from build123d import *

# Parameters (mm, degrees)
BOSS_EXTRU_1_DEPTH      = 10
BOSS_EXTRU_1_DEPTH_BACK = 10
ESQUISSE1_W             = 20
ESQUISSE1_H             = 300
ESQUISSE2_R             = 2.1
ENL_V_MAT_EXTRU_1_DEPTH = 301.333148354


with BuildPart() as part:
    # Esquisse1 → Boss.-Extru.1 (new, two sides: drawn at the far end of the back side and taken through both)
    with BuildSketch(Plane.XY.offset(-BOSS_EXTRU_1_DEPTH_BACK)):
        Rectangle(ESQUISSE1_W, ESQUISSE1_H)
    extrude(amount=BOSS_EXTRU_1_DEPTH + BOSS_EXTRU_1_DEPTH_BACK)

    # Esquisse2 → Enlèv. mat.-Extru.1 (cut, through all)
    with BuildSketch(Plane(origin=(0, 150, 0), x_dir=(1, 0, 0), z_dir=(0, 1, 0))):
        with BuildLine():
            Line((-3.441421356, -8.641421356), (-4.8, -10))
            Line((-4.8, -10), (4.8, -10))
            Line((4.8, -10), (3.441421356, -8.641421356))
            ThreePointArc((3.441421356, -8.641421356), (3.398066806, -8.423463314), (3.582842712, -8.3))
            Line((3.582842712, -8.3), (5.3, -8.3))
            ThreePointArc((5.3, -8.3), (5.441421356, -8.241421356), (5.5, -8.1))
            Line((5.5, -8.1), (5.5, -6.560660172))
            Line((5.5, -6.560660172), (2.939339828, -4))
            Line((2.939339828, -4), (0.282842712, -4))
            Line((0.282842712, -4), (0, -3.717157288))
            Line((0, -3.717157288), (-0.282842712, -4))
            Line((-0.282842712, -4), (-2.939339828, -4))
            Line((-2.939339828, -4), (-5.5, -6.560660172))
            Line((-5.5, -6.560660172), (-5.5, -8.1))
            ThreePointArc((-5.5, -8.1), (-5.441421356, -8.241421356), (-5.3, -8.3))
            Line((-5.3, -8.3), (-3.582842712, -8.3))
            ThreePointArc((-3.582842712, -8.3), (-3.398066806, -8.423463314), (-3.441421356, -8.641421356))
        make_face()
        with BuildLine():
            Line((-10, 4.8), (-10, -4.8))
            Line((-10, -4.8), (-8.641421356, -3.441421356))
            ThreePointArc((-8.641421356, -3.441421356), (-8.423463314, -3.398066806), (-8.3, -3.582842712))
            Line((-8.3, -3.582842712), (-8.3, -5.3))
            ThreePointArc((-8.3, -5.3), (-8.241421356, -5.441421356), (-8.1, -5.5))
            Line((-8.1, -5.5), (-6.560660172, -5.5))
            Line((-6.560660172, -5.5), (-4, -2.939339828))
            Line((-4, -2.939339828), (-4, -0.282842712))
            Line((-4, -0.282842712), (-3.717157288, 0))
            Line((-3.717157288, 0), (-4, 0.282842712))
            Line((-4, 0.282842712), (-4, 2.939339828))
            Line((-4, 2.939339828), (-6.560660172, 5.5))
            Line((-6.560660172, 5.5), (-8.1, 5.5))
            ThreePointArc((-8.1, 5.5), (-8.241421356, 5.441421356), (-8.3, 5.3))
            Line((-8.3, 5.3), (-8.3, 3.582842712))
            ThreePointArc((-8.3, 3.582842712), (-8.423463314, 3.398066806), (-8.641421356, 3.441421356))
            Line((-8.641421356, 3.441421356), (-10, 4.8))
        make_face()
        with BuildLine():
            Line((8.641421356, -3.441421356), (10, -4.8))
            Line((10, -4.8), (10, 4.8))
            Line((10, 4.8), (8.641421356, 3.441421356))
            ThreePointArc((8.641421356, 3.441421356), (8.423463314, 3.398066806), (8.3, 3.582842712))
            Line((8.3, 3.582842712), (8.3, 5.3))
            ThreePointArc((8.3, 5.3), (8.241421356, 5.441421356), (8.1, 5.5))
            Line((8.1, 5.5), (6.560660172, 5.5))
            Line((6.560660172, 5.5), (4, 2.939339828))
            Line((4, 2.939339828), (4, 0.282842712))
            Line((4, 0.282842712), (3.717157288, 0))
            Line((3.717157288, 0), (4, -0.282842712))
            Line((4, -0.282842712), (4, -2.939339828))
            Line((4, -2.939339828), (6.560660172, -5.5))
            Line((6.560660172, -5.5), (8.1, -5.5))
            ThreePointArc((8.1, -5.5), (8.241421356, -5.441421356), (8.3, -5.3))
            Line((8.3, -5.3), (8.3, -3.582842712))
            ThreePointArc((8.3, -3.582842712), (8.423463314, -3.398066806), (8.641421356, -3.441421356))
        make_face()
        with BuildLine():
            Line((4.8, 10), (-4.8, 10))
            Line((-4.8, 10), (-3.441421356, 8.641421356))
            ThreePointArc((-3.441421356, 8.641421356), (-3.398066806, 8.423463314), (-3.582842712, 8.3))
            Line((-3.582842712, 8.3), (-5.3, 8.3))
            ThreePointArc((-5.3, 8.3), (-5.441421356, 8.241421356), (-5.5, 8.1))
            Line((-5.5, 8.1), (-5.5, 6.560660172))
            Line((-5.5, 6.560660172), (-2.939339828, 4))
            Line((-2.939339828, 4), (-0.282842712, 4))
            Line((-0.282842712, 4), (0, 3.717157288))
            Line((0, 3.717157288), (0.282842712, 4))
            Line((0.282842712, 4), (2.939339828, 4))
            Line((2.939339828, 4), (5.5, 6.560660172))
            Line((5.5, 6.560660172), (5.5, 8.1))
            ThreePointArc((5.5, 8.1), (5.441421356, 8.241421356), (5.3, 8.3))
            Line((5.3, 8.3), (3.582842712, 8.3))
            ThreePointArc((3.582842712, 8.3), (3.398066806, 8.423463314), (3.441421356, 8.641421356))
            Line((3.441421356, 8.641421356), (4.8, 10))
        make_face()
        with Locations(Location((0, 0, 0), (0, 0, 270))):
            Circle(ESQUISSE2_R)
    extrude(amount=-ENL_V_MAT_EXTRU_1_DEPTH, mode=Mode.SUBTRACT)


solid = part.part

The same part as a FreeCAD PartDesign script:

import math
import FreeCAD as App
import Part
import Sketcher
from FreeCAD import Vector


def add_polygon(sketch, points):
    """Adds a closed chain of lines whose ends are joined by coincident constraints."""
    first, n = sketch.GeometryCount, len(points)
    for a, b in zip(points, points[1:] + points[:1]):
        sketch.addGeometry(Part.LineSegment(App.Vector(*a, 0), App.Vector(*b, 0)), False)
    for i in range(n):
        sketch.addConstraint(Sketcher.Constraint("Coincident", first + i, 2, first + (i + 1) % n, 1))

doc = App.newDocument("Part")
body = doc.addObject("PartDesign::Body", "Body")

sketch1 = body.newObject("Sketcher::SketchObject", "Sketch")
sketch1.AttachmentSupport = (doc.getObject("XY_Plane"), [""])
sketch1.MapMode = "FlatFace"
add_polygon(sketch1, [(-10, 150), (-10, -150), (10, -150), (10, 150)])
sketch1.addConstraint(Sketcher.Constraint("Vertical", 0))
sketch1.addConstraint(Sketcher.Constraint("Horizontal", 1))
sketch1.addConstraint(Sketcher.Constraint("Vertical", 2))
sketch1.addConstraint(Sketcher.Constraint("Horizontal", 3))
sketch1.addConstraint(Sketcher.Constraint("Symmetric", 0, 2, 2, 2, -1, 1))
sketch1.addConstraint(Sketcher.Constraint("DistanceX", 1, 1, 1, 2, 20.0))
sketch1.addConstraint(Sketcher.Constraint("DistanceY", 0, 2, 0, 1, 300.0))
pad1 = body.newObject("PartDesign::Pad", "Pad")
pad1.Profile = sketch1
pad1.Type = "TwoLengths"
pad1.Length = 10
pad1.Length2 = 10

sketch2 = body.newObject("Sketcher::SketchObject", "Sketch001")
sketch2.AttachmentSupport = (doc.getObject("XZ_Plane"), [""])
sketch2.MapMode = "FlatFace"
sketch2.AttachmentOffset = App.Placement(Vector(0, 0, -150), App.Rotation())
sketch2.addGeometry(Part.LineSegment(Vector(-3.441421, 8.641421, 0), Vector(-4.8, 10, 0)), False)
sketch2.addGeometry(Part.LineSegment(Vector(-4.8, 10, 0), Vector(4.8, 10, 0)), False)
sketch2.addGeometry(Part.LineSegment(Vector(4.8, 10, 0), Vector(3.441421, 8.641421, 0)), False)
sketch2.addGeometry(Part.ArcOfCircle(Part.Circle(Vector(3.582843, 8.5, 0), Vector(0, 0, 1), 0.2), math.radians(135), math.radians(270)), False)
sketch2.addGeometry(Part.LineSegment(Vector(3.582843, 8.3, 0), Vector(5.3, 8.3, 0)), False)
sketch2.addGeometry(Part.ArcOfCircle(Part.Circle(Vector(5.3, 8.1, 0), Vector(0, 0, 1), 0.2), math.radians(0), math.radians(90)), False)
sketch2.addGeometry(Part.LineSegment(Vector(5.5, 8.1, 0), Vector(5.5, 6.56066, 0)), False)
sketch2.addGeometry(Part.LineSegment(Vector(5.5, 6.56066, 0), Vector(2.93934, 4, 0)), False)
sketch2.addGeometry(Part.LineSegment(Vector(2.93934, 4, 0), Vector(0.282843, 4, 0)), False)
sketch2.addGeometry(Part.LineSegment(Vector(0.282843, 4, 0), Vector(0, 3.717157, 0)), False)
sketch2.addGeometry(Part.LineSegment(Vector(0, 3.717157, 0), Vector(-0.282843, 4, 0)), False)
sketch2.addGeometry(Part.LineSegment(Vector(-0.282843, 4, 0), Vector(-2.93934, 4, 0)), False)
sketch2.addGeometry(Part.LineSegment(Vector(-2.93934, 4, 0), Vector(-5.5, 6.56066, 0)), False)
sketch2.addGeometry(Part.LineSegment(Vector(-5.5, 6.56066, 0), Vector(-5.5, 8.1, 0)), False)
sketch2.addGeometry(Part.ArcOfCircle(Part.Circle(Vector(-5.3, 8.1, 0), Vector(0, 0, 1), 0.2), math.radians(90), math.radians(180)), False)
sketch2.addGeometry(Part.LineSegment(Vector(-5.3, 8.3, 0), Vector(-3.582843, 8.3, 0)), False)
sketch2.addGeometry(Part.ArcOfCircle(Part.Circle(Vector(-3.582843, 8.5, 0), Vector(0, 0, 1), 0.2), math.radians(-90), math.radians(45)), False)
sketch2.addGeometry(Part.LineSegment(Vector(-10, -4.8, 0), Vector(-10, 4.8, 0)), False)
sketch2.addGeometry(Part.LineSegment(Vector(-10, 4.8, 0), Vector(-8.641421, 3.441421, 0)), False)
sketch2.addGeometry(Part.ArcOfCircle(Part.Circle(Vector(-8.5, 3.582843, 0), Vector(0, 0, 1), 0.2), math.radians(-135), math.radians(0)), False)
sketch2.addGeometry(Part.LineSegment(Vector(-8.3, 3.582843, 0), Vector(-8.3, 5.3, 0)), False)
sketch2.addGeometry(Part.ArcOfCircle(Part.Circle(Vector(-8.1, 5.3, 0), Vector(0, 0, 1), 0.2), math.radians(90), math.radians(180)), False)
sketch2.addGeometry(Part.LineSegment(Vector(-8.1, 5.5, 0), Vector(-6.56066, 5.5, 0)), False)
sketch2.addGeometry(Part.LineSegment(Vector(-6.56066, 5.5, 0), Vector(-4, 2.93934, 0)), False)
sketch2.addGeometry(Part.LineSegment(Vector(-4, 2.93934, 0), Vector(-4, 0.282843, 0)), False)
sketch2.addGeometry(Part.LineSegment(Vector(-4, 0.282843, 0), Vector(-3.717157, 0, 0)), False)
sketch2.addGeometry(Part.LineSegment(Vector(-3.717157, 0, 0), Vector(-4, -0.282843, 0)), False)
sketch2.addGeometry(Part.LineSegment(Vector(-4, -0.282843, 0), Vector(-4, -2.93934, 0)), False)
sketch2.addGeometry(Part.LineSegment(Vector(-4, -2.93934, 0), Vector(-6.56066, -5.5, 0)), False)
sketch2.addGeometry(Part.LineSegment(Vector(-6.56066, -5.5, 0), Vector(-8.1, -5.5, 0)), False)
sketch2.addGeometry(Part.ArcOfCircle(Part.Circle(Vector(-8.1, -5.3, 0), Vector(0, 0, 1), 0.2), math.radians(-180), math.radians(-90)), False)
sketch2.addGeometry(Part.LineSegment(Vector(-8.3, -5.3, 0), Vector(-8.3, -3.582843, 0)), False)
sketch2.addGeometry(Part.ArcOfCircle(Part.Circle(Vector(-8.5, -3.582843, 0), Vector(0, 0, 1), 0.2), math.radians(0), math.radians(135)), False)
sketch2.addGeometry(Part.LineSegment(Vector(-8.641421, -3.441421, 0), Vector(-10, -4.8, 0)), False)
sketch2.addGeometry(Part.LineSegment(Vector(8.641421, 3.441421, 0), Vector(10, 4.8, 0)), False)
sketch2.addGeometry(Part.LineSegment(Vector(10, 4.8, 0), Vector(10, -4.8, 0)), False)
sketch2.addGeometry(Part.LineSegment(Vector(10, -4.8, 0), Vector(8.641421, -3.441421, 0)), False)
sketch2.addGeometry(Part.ArcOfCircle(Part.Circle(Vector(8.5, -3.582843, 0), Vector(0, 0, 1), 0.2), math.radians(45), math.radians(180)), False)
sketch2.addGeometry(Part.LineSegment(Vector(8.3, -3.582843, 0), Vector(8.3, -5.3, 0)), False)
sketch2.addGeometry(Part.ArcOfCircle(Part.Circle(Vector(8.1, -5.3, 0), Vector(0, 0, 1), 0.2), math.radians(-90), math.radians(0)), False)
sketch2.addGeometry(Part.LineSegment(Vector(8.1, -5.5, 0), Vector(6.56066, -5.5, 0)), False)
sketch2.addGeometry(Part.LineSegment(Vector(6.56066, -5.5, 0), Vector(4, -2.93934, 0)), False)
sketch2.addGeometry(Part.LineSegment(Vector(4, -2.93934, 0), Vector(4, -0.282843, 0)), False)
sketch2.addGeometry(Part.LineSegment(Vector(4, -0.282843, 0), Vector(3.717157, 0, 0)), False)
sketch2.addGeometry(Part.LineSegment(Vector(3.717157, 0, 0), Vector(4, 0.282843, 0)), False)
sketch2.addGeometry(Part.LineSegment(Vector(4, 0.282843, 0), Vector(4, 2.93934, 0)), False)
sketch2.addGeometry(Part.LineSegment(Vector(4, 2.93934, 0), Vector(6.56066, 5.5, 0)), False)
sketch2.addGeometry(Part.LineSegment(Vector(6.56066, 5.5, 0), Vector(8.1, 5.5, 0)), False)
sketch2.addGeometry(Part.ArcOfCircle(Part.Circle(Vector(8.1, 5.3, 0), Vector(0, 0, 1), 0.2), math.radians(0), math.radians(90)), False)
sketch2.addGeometry(Part.LineSegment(Vector(8.3, 5.3, 0), Vector(8.3, 3.582843, 0)), False)
sketch2.addGeometry(Part.ArcOfCircle(Part.Circle(Vector(8.5, 3.582843, 0), Vector(0, 0, 1), 0.2), math.radians(-180), math.radians(-45)), False)
sketch2.addGeometry(Part.LineSegment(Vector(4.8, -10, 0), Vector(-4.8, -10, 0)), False)
sketch2.addGeometry(Part.LineSegment(Vector(-4.8, -10, 0), Vector(-3.441421, -8.641421, 0)), False)
sketch2.addGeometry(Part.ArcOfCircle(Part.Circle(Vector(-3.582843, -8.5, 0), Vector(0, 0, 1), 0.2), math.radians(-45), math.radians(90)), False)
sketch2.addGeometry(Part.LineSegment(Vector(-3.582843, -8.3, 0), Vector(-5.3, -8.3, 0)), False)
sketch2.addGeometry(Part.ArcOfCircle(Part.Circle(Vector(-5.3, -8.1, 0), Vector(0, 0, 1), 0.2), math.radians(-180), math.radians(-90)), False)
sketch2.addGeometry(Part.LineSegment(Vector(-5.5, -8.1, 0), Vector(-5.5, -6.56066, 0)), False)
sketch2.addGeometry(Part.LineSegment(Vector(-5.5, -6.56066, 0), Vector(-2.93934, -4, 0)), False)
sketch2.addGeometry(Part.LineSegment(Vector(-2.93934, -4, 0), Vector(-0.282843, -4, 0)), False)
sketch2.addGeometry(Part.LineSegment(Vector(-0.282843, -4, 0), Vector(0, -3.717157, 0)), False)
sketch2.addGeometry(Part.LineSegment(Vector(0, -3.717157, 0), Vector(0.282843, -4, 0)), False)
sketch2.addGeometry(Part.LineSegment(Vector(0.282843, -4, 0), Vector(2.93934, -4, 0)), False)
sketch2.addGeometry(Part.LineSegment(Vector(2.93934, -4, 0), Vector(5.5, -6.56066, 0)), False)
sketch2.addGeometry(Part.LineSegment(Vector(5.5, -6.56066, 0), Vector(5.5, -8.1, 0)), False)
sketch2.addGeometry(Part.ArcOfCircle(Part.Circle(Vector(5.3, -8.1, 0), Vector(0, 0, 1), 0.2), math.radians(-90), math.radians(0)), False)
sketch2.addGeometry(Part.LineSegment(Vector(5.3, -8.3, 0), Vector(3.582843, -8.3, 0)), False)
sketch2.addGeometry(Part.ArcOfCircle(Part.Circle(Vector(3.582843, -8.5, 0), Vector(0, 0, 1), 0.2), math.radians(90), math.radians(225)), False)
sketch2.addGeometry(Part.LineSegment(Vector(3.441421, -8.641421, 0), Vector(4.8, -10, 0)), False)
sketch2.addGeometry(Part.Circle(Vector(0, 0, 0), Vector(0, 0, 1), 2.1), False)
sketch2.addConstraint(Sketcher.Constraint("Coincident", 0, 2, 1, 1))
sketch2.addConstraint(Sketcher.Constraint("Coincident", 1, 2, 2, 1))
sketch2.addConstraint(Sketcher.Constraint("Tangent", 2, 2, 3, 1))
sketch2.addConstraint(Sketcher.Constraint("Tangent", 3, 2, 4, 1))
sketch2.addConstraint(Sketcher.Constraint("Tangent", 4, 2, 5, 2))
sketch2.addConstraint(Sketcher.Constraint("Tangent", 5, 1, 6, 1))
sketch2.addConstraint(Sketcher.Constraint("Coincident", 6, 2, 7, 1))
sketch2.addConstraint(Sketcher.Constraint("Coincident", 7, 2, 8, 1))
sketch2.addConstraint(Sketcher.Constraint("Coincident", 8, 2, 9, 1))
sketch2.addConstraint(Sketcher.Constraint("Coincident", 9, 2, 10, 1))
sketch2.addConstraint(Sketcher.Constraint("Coincident", 10, 2, 11, 1))
sketch2.addConstraint(Sketcher.Constraint("Coincident", 11, 2, 12, 1))
sketch2.addConstraint(Sketcher.Constraint("Coincident", 12, 2, 13, 1))
sketch2.addConstraint(Sketcher.Constraint("Tangent", 13, 2, 14, 2))
sketch2.addConstraint(Sketcher.Constraint("Tangent", 14, 1, 15, 1))
sketch2.addConstraint(Sketcher.Constraint("Tangent", 15, 2, 16, 1))
sketch2.addConstraint(Sketcher.Constraint("Tangent", 16, 2, 0, 1))
sketch2.addConstraint(Sketcher.Constraint("Coincident", 17, 2, 18, 1))
sketch2.addConstraint(Sketcher.Constraint("Tangent", 18, 2, 19, 1))
sketch2.addConstraint(Sketcher.Constraint("Tangent", 19, 2, 20, 1))
sketch2.addConstraint(Sketcher.Constraint("Tangent", 20, 2, 21, 2))
sketch2.addConstraint(Sketcher.Constraint("Tangent", 21, 1, 22, 1))
sketch2.addConstraint(Sketcher.Constraint("Coincident", 22, 2, 23, 1))
sketch2.addConstraint(Sketcher.Constraint("Coincident", 23, 2, 24, 1))
sketch2.addConstraint(Sketcher.Constraint("Coincident", 24, 2, 25, 1))
sketch2.addConstraint(Sketcher.Constraint("Coincident", 25, 2, 26, 1))
sketch2.addConstraint(Sketcher.Constraint("Coincident", 26, 2, 27, 1))
sketch2.addConstraint(Sketcher.Constraint("Coincident", 27, 2, 28, 1))
sketch2.addConstraint(Sketcher.Constraint("Coincident", 28, 2, 29, 1))
sketch2.addConstraint(Sketcher.Constraint("Tangent", 29, 2, 30, 2))
sketch2.addConstraint(Sketcher.Constraint("Tangent", 30, 1, 31, 1))
sketch2.addConstraint(Sketcher.Constraint("Tangent", 31, 2, 32, 1))
sketch2.addConstraint(Sketcher.Constraint("Tangent", 32, 2, 33, 1))
sketch2.addConstraint(Sketcher.Constraint("Coincident", 33, 2, 17, 1))
sketch2.addConstraint(Sketcher.Constraint("Coincident", 34, 2, 35, 1))
sketch2.addConstraint(Sketcher.Constraint("Coincident", 35, 2, 36, 1))
sketch2.addConstraint(Sketcher.Constraint("Tangent", 36, 2, 37, 1))
sketch2.addConstraint(Sketcher.Constraint("Tangent", 37, 2, 38, 1))
sketch2.addConstraint(Sketcher.Constraint("Tangent", 38, 2, 39, 2))
sketch2.addConstraint(Sketcher.Constraint("Tangent", 39, 1, 40, 1))
sketch2.addConstraint(Sketcher.Constraint("Coincident", 40, 2, 41, 1))
sketch2.addConstraint(Sketcher.Constraint("Coincident", 41, 2, 42, 1))
sketch2.addConstraint(Sketcher.Constraint("Coincident", 42, 2, 43, 1))
sketch2.addConstraint(Sketcher.Constraint("Coincident", 43, 2, 44, 1))
sketch2.addConstraint(Sketcher.Constraint("Coincident", 44, 2, 45, 1))
sketch2.addConstraint(Sketcher.Constraint("Coincident", 45, 2, 46, 1))
sketch2.addConstraint(Sketcher.Constraint("Coincident", 46, 2, 47, 1))
sketch2.addConstraint(Sketcher.Constraint("Tangent", 47, 2, 48, 2))
sketch2.addConstraint(Sketcher.Constraint("Tangent", 48, 1, 49, 1))
sketch2.addConstraint(Sketcher.Constraint("Tangent", 49, 2, 50, 1))
sketch2.addConstraint(Sketcher.Constraint("Tangent", 50, 2, 34, 1))
sketch2.addConstraint(Sketcher.Constraint("Coincident", 51, 2, 52, 1))
sketch2.addConstraint(Sketcher.Constraint("Tangent", 52, 2, 53, 1))
sketch2.addConstraint(Sketcher.Constraint("Tangent", 53, 2, 54, 1))
sketch2.addConstraint(Sketcher.Constraint("Tangent", 54, 2, 55, 2))
sketch2.addConstraint(Sketcher.Constraint("Tangent", 55, 1, 56, 1))
sketch2.addConstraint(Sketcher.Constraint("Coincident", 56, 2, 57, 1))
sketch2.addConstraint(Sketcher.Constraint("Coincident", 57, 2, 58, 1))
sketch2.addConstraint(Sketcher.Constraint("Coincident", 58, 2, 59, 1))
sketch2.addConstraint(Sketcher.Constraint("Coincident", 59, 2, 60, 1))
sketch2.addConstraint(Sketcher.Constraint("Coincident", 60, 2, 61, 1))
sketch2.addConstraint(Sketcher.Constraint("Coincident", 61, 2, 62, 1))
sketch2.addConstraint(Sketcher.Constraint("Coincident", 62, 2, 63, 1))
sketch2.addConstraint(Sketcher.Constraint("Tangent", 63, 2, 64, 2))
sketch2.addConstraint(Sketcher.Constraint("Tangent", 64, 1, 65, 1))
sketch2.addConstraint(Sketcher.Constraint("Tangent", 65, 2, 66, 1))
sketch2.addConstraint(Sketcher.Constraint("Tangent", 66, 2, 67, 1))
sketch2.addConstraint(Sketcher.Constraint("Coincident", 67, 2, 51, 1))
sketch2.addConstraint(Sketcher.Constraint("Horizontal", 1))
sketch2.addConstraint(Sketcher.Constraint("Horizontal", 4))
sketch2.addConstraint(Sketcher.Constraint("Vertical", 6))
sketch2.addConstraint(Sketcher.Constraint("Horizontal", 8))
sketch2.addConstraint(Sketcher.Constraint("Horizontal", 11))
sketch2.addConstraint(Sketcher.Constraint("Vertical", 13))
sketch2.addConstraint(Sketcher.Constraint("Horizontal", 15))
sketch2.addConstraint(Sketcher.Constraint("Vertical", 17))
sketch2.addConstraint(Sketcher.Constraint("Vertical", 20))
sketch2.addConstraint(Sketcher.Constraint("Horizontal", 22))
sketch2.addConstraint(Sketcher.Constraint("Vertical", 24))
sketch2.addConstraint(Sketcher.Constraint("Vertical", 27))
sketch2.addConstraint(Sketcher.Constraint("Horizontal", 29))
sketch2.addConstraint(Sketcher.Constraint("Vertical", 31))
sketch2.addConstraint(Sketcher.Constraint("Vertical", 35))
sketch2.addConstraint(Sketcher.Constraint("Vertical", 38))
sketch2.addConstraint(Sketcher.Constraint("Horizontal", 40))
sketch2.addConstraint(Sketcher.Constraint("Vertical", 42))
sketch2.addConstraint(Sketcher.Constraint("Vertical", 45))
sketch2.addConstraint(Sketcher.Constraint("Horizontal", 47))
sketch2.addConstraint(Sketcher.Constraint("Vertical", 49))
sketch2.addConstraint(Sketcher.Constraint("Horizontal", 51))
sketch2.addConstraint(Sketcher.Constraint("Horizontal", 54))
sketch2.addConstraint(Sketcher.Constraint("Vertical", 56))
sketch2.addConstraint(Sketcher.Constraint("Horizontal", 58))
sketch2.addConstraint(Sketcher.Constraint("Horizontal", 61))
sketch2.addConstraint(Sketcher.Constraint("Vertical", 63))
sketch2.addConstraint(Sketcher.Constraint("Horizontal", 65))
sketch2.addConstraint(Sketcher.Constraint("Coincident", 68, 3, -1, 1))
sketch2.addConstraint(Sketcher.Constraint("Equal", 3, 5))
sketch2.addConstraint(Sketcher.Constraint("Equal", 5, 14))
sketch2.addConstraint(Sketcher.Constraint("Equal", 14, 16))
sketch2.addConstraint(Sketcher.Constraint("Equal", 16, 19))
sketch2.addConstraint(Sketcher.Constraint("Equal", 19, 21))
sketch2.addConstraint(Sketcher.Constraint("Equal", 21, 30))
sketch2.addConstraint(Sketcher.Constraint("Equal", 30, 32))
sketch2.addConstraint(Sketcher.Constraint("Equal", 32, 37))
sketch2.addConstraint(Sketcher.Constraint("Equal", 37, 39))
sketch2.addConstraint(Sketcher.Constraint("Equal", 39, 48))
sketch2.addConstraint(Sketcher.Constraint("Equal", 48, 50))
sketch2.addConstraint(Sketcher.Constraint("Equal", 50, 53))
sketch2.addConstraint(Sketcher.Constraint("Equal", 53, 55))
sketch2.addConstraint(Sketcher.Constraint("Equal", 55, 64))
sketch2.addConstraint(Sketcher.Constraint("Equal", 64, 66))
sketch2.addConstraint(Sketcher.Constraint("Symmetric", 19, 3, 37, 3, -1, 1))
sketch2.addConstraint(Sketcher.Constraint("Symmetric", 30, 3, 48, 3, -1, 1))
sketch2.addConstraint(Sketcher.Constraint("Symmetric", 3, 3, 53, 3, -1, 1))
sketch2.addConstraint(Sketcher.Constraint("Symmetric", 14, 3, 64, 3, -1, 1))
sketch2.addConstraint(Sketcher.Constraint("Symmetric", 33, 2, 34, 2, -1, 1))
sketch2.addConstraint(Sketcher.Constraint("Symmetric", 22, 2, 40, 2, -1, 1))
sketch2.addConstraint(Sketcher.Constraint("Symmetric", 23, 2, 41, 2, -1, 1))
sketch2.addConstraint(Sketcher.Constraint("Symmetric", 25, 2, 43, 2, -1, 1))
sketch2.addConstraint(Sketcher.Constraint("Symmetric", 26, 2, 44, 2, -1, 1))
sketch2.addConstraint(Sketcher.Constraint("Symmetric", 1, 2, 51, 2, -1, 1))
sketch2.addConstraint(Sketcher.Constraint("Symmetric", 6, 2, 56, 2, -1, 1))
sketch2.addConstraint(Sketcher.Constraint("Symmetric", 7, 2, 57, 2, -1, 1))
sketch2.addConstraint(Sketcher.Constraint("Symmetric", 9, 2, 59, 2, -1, 1))
sketch2.addConstraint(Sketcher.Constraint("Symmetric", 10, 2, 60, 2, -1, 1))
sketch2.addConstraint(Sketcher.Constraint("Symmetric", 16, 2, 66, 2, -1, 1))
sketch2.addConstraint(Sketcher.Constraint("Symmetric", 5, 3, 14, 3, -2))
sketch2.addConstraint(Sketcher.Constraint("Symmetric", 32, 3, 37, 3, -2))
sketch2.addConstraint(Sketcher.Constraint("Symmetric", 8, 2, 10, 2, -2))
sketch2.addConstraint(Sketcher.Constraint("Symmetric", 2, 2, 16, 2, -2))
sketch2.addConstraint(Sketcher.Constraint("Symmetric", 28, 2, 40, 2, -2))
sketch2.addConstraint(Sketcher.Constraint("Symmetric", 27, 2, 41, 2, -2))
sketch2.addConstraint(Sketcher.Constraint("Symmetric", 18, 2, 50, 2, -2))
sketch2.addConstraint(Sketcher.Constraint("PointOnObject", 9, 2, -2))
sketch2.addConstraint(Sketcher.Constraint("PointOnObject", 25, 2, -1))
sketch2.addConstraint(Sketcher.Constraint("Perpendicular", 0, 2))
sketch2.addConstraint(Sketcher.Constraint("Parallel", 2, 7))
sketch2.addConstraint(Sketcher.Constraint("Parallel", 7, 9))
sketch2.addConstraint(Sketcher.Constraint("Parallel", 10, 12))
sketch2.addConstraint(Sketcher.Constraint("Parallel", 12, 18))
sketch2.addConstraint(Sketcher.Constraint("Parallel", 18, 23))
sketch2.addConstraint(Sketcher.Constraint("Parallel", 23, 25))
sketch2.addConstraint(Sketcher.Constraint("Perpendicular", 25, 26))
sketch2.addConstraint(Sketcher.Constraint("Perpendicular", 34, 36))
sketch2.addConstraint(Sketcher.Constraint("Parallel", 41, 43))
sketch2.addConstraint(Sketcher.Constraint("Parallel", 44, 46))
sketch2.addConstraint(Sketcher.Constraint("Parallel", 57, 59))
sketch2.addConstraint(Sketcher.Constraint("Parallel", 60, 62))
sketch2.addConstraint(Sketcher.Constraint("Horizontal", 6, 2, 12, 2))
sketch2.addConstraint(Sketcher.Constraint("Horizontal", 23, 2, 45, 2))
sketch2.addConstraint(Sketcher.Constraint("Horizontal", 56, 2, 62, 2))
sketch2.addConstraint(Sketcher.Constraint("Equal", 47, 6))
sketch2.addConstraint(Sketcher.Constraint("Equal", 51, 17))
sketch2.addConstraint(Sketcher.Constraint("Equal", 65, 20))
sketch2.addConstraint(Sketcher.Constraint("Equal", 61, 24))
sketch2.addConstraint(Sketcher.Constraint("Equal", 2, 18))
sketch2.addConstraint(Sketcher.Constraint("Equal", 12, 23))
sketch2.addConstraint(Sketcher.Constraint("Diameter", 68, 4.2))
sketch2.addConstraint(Sketcher.Constraint("Radius", 3, 0.2))
sketch2.addConstraint(Sketcher.Constraint("DistanceX", 1, 1, 1, 2, 9.6))
sketch2.addConstraint(Sketcher.Constraint("DistanceY", -1, 1, 0, 2, 10.0))
sketch2.addConstraint(Sketcher.Constraint("DistanceY", -1, 1, 7, 2, 4.0))
sketch2.addConstraint(Sketcher.Constraint("DistanceX", 17, 2, -1, 1, 10.0))
sketch2.addConstraint(Sketcher.Constraint("Distance", 9, 0.4))
sketch2.addConstraint(Sketcher.Constraint("DistanceY", -1, 1, 3, 3, 8.5))
sketch2.addConstraint(Sketcher.Constraint("DistanceX", -1, 1, 5, 3, 5.3))
sketch2.addConstraint(Sketcher.Constraint("DistanceX", 22, 1, 22, 2, 1.53934))
pocket1 = body.newObject("PartDesign::Pocket", "Pocket")
pocket1.Profile = sketch2
pocket1.Type = "ThroughAll"
pocket1.Reversed = True

doc.recompute()
